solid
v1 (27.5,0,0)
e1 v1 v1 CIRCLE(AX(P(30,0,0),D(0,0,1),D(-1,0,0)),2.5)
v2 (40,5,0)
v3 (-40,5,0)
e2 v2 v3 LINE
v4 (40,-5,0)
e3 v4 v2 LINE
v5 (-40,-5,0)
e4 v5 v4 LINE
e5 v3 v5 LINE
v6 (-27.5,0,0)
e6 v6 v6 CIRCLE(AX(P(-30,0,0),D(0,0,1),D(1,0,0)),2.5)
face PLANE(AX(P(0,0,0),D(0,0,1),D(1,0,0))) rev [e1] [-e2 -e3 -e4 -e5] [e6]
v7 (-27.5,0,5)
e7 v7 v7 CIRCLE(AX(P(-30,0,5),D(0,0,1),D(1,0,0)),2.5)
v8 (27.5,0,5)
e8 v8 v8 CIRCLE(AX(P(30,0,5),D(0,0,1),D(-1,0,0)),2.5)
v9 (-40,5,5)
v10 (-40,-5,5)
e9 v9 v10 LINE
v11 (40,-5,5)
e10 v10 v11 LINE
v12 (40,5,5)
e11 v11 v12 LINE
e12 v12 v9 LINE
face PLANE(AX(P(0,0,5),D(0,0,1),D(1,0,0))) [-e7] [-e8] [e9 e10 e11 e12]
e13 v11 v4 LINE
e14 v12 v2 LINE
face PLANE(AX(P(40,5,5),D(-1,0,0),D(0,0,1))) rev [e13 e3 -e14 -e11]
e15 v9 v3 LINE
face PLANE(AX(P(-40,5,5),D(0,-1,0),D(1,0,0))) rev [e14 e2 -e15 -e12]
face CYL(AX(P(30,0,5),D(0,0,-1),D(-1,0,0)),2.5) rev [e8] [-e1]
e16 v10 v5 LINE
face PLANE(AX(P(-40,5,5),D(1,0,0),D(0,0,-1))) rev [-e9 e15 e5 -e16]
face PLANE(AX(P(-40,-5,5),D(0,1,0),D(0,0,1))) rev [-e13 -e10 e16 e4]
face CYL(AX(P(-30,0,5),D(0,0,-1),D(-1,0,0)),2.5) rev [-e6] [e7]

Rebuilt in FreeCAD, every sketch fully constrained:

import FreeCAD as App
import Part
import Sketcher
from FreeCAD import Vector
Q = App.Units.Quantity


def add_polygon(sketch, points):
    """Adds a closed chain of lines whose ends are joined by coincident constraints."""
    first, n = sketch.GeometryCount, len(points)
    for a, b in zip(points, points[1:] + points[:1]):
        sketch.addGeometry(Part.LineSegment(App.Vector(*a, 0), App.Vector(*b, 0)), False)
    for i in range(n):
        sketch.addConstraint(Sketcher.Constraint("Coincident", first + i, 2, first + (i + 1) % n, 1))

doc = App.newDocument("Part")
body = doc.addObject("PartDesign::Body", "Body")

# Sketch on XY plane
sketch1 = doc.addObject("Sketcher::SketchObject", "Sketch")
body.addObject(sketch1)
sketch1.AttachmentSupport = (doc.XY_Plane, [""])
sketch1.MapMode = "FlatFace"
add_polygon(sketch1, [(-40, 5), (-40, -5), (40, -5), (40, 5)])  # lines 0-3
sketch1.addGeometry(Part.Circle(Vector(-30, 0, 0), Vector(0, 0, 1), 2.5), False)  # 4
sketch1.addGeometry(Part.Circle(Vector(30, 0, 0), Vector(0, 0, 1), 2.5), False)  # 5
sketch1.addConstraint(Sketcher.Constraint("Vertical", 0))
sketch1.addConstraint(Sketcher.Constraint("Horizontal", 1))
sketch1.addConstraint(Sketcher.Constraint("Vertical", 2))
sketch1.addConstraint(Sketcher.Constraint("Horizontal", 3))
sketch1.addConstraint(Sketcher.Constraint("Equal", 4, 5))
sketch1.addConstraint(Sketcher.Constraint("Symmetric", 4, 3, 5, 3, -1, 1))
sketch1.addConstraint(Sketcher.Constraint("Symmetric", 0, 2, 2, 2, -1, 1))
sketch1.addConstraint(Sketcher.Constraint("PointOnObject", 4, 3, -1))
sketch1.addConstraint(Sketcher.Constraint("Diameter", 4, Q("5 mm")))
sketch1.addConstraint(Sketcher.Constraint("DistanceX", 1, 1, 1, 2, Q("80 mm")))
sketch1.addConstraint(Sketcher.Constraint("DistanceY", 0, 2, 0, 1, Q("10 mm")))
sketch1.addConstraint(Sketcher.Constraint("DistanceX", 4, 3, -1, 1, Q("30 mm")))
pad1 = doc.addObject("PartDesign::Pad", "Pad")
body.addObject(pad1)
pad1.Profile = sketch1
pad1.Length = 5

doc.recompute()
